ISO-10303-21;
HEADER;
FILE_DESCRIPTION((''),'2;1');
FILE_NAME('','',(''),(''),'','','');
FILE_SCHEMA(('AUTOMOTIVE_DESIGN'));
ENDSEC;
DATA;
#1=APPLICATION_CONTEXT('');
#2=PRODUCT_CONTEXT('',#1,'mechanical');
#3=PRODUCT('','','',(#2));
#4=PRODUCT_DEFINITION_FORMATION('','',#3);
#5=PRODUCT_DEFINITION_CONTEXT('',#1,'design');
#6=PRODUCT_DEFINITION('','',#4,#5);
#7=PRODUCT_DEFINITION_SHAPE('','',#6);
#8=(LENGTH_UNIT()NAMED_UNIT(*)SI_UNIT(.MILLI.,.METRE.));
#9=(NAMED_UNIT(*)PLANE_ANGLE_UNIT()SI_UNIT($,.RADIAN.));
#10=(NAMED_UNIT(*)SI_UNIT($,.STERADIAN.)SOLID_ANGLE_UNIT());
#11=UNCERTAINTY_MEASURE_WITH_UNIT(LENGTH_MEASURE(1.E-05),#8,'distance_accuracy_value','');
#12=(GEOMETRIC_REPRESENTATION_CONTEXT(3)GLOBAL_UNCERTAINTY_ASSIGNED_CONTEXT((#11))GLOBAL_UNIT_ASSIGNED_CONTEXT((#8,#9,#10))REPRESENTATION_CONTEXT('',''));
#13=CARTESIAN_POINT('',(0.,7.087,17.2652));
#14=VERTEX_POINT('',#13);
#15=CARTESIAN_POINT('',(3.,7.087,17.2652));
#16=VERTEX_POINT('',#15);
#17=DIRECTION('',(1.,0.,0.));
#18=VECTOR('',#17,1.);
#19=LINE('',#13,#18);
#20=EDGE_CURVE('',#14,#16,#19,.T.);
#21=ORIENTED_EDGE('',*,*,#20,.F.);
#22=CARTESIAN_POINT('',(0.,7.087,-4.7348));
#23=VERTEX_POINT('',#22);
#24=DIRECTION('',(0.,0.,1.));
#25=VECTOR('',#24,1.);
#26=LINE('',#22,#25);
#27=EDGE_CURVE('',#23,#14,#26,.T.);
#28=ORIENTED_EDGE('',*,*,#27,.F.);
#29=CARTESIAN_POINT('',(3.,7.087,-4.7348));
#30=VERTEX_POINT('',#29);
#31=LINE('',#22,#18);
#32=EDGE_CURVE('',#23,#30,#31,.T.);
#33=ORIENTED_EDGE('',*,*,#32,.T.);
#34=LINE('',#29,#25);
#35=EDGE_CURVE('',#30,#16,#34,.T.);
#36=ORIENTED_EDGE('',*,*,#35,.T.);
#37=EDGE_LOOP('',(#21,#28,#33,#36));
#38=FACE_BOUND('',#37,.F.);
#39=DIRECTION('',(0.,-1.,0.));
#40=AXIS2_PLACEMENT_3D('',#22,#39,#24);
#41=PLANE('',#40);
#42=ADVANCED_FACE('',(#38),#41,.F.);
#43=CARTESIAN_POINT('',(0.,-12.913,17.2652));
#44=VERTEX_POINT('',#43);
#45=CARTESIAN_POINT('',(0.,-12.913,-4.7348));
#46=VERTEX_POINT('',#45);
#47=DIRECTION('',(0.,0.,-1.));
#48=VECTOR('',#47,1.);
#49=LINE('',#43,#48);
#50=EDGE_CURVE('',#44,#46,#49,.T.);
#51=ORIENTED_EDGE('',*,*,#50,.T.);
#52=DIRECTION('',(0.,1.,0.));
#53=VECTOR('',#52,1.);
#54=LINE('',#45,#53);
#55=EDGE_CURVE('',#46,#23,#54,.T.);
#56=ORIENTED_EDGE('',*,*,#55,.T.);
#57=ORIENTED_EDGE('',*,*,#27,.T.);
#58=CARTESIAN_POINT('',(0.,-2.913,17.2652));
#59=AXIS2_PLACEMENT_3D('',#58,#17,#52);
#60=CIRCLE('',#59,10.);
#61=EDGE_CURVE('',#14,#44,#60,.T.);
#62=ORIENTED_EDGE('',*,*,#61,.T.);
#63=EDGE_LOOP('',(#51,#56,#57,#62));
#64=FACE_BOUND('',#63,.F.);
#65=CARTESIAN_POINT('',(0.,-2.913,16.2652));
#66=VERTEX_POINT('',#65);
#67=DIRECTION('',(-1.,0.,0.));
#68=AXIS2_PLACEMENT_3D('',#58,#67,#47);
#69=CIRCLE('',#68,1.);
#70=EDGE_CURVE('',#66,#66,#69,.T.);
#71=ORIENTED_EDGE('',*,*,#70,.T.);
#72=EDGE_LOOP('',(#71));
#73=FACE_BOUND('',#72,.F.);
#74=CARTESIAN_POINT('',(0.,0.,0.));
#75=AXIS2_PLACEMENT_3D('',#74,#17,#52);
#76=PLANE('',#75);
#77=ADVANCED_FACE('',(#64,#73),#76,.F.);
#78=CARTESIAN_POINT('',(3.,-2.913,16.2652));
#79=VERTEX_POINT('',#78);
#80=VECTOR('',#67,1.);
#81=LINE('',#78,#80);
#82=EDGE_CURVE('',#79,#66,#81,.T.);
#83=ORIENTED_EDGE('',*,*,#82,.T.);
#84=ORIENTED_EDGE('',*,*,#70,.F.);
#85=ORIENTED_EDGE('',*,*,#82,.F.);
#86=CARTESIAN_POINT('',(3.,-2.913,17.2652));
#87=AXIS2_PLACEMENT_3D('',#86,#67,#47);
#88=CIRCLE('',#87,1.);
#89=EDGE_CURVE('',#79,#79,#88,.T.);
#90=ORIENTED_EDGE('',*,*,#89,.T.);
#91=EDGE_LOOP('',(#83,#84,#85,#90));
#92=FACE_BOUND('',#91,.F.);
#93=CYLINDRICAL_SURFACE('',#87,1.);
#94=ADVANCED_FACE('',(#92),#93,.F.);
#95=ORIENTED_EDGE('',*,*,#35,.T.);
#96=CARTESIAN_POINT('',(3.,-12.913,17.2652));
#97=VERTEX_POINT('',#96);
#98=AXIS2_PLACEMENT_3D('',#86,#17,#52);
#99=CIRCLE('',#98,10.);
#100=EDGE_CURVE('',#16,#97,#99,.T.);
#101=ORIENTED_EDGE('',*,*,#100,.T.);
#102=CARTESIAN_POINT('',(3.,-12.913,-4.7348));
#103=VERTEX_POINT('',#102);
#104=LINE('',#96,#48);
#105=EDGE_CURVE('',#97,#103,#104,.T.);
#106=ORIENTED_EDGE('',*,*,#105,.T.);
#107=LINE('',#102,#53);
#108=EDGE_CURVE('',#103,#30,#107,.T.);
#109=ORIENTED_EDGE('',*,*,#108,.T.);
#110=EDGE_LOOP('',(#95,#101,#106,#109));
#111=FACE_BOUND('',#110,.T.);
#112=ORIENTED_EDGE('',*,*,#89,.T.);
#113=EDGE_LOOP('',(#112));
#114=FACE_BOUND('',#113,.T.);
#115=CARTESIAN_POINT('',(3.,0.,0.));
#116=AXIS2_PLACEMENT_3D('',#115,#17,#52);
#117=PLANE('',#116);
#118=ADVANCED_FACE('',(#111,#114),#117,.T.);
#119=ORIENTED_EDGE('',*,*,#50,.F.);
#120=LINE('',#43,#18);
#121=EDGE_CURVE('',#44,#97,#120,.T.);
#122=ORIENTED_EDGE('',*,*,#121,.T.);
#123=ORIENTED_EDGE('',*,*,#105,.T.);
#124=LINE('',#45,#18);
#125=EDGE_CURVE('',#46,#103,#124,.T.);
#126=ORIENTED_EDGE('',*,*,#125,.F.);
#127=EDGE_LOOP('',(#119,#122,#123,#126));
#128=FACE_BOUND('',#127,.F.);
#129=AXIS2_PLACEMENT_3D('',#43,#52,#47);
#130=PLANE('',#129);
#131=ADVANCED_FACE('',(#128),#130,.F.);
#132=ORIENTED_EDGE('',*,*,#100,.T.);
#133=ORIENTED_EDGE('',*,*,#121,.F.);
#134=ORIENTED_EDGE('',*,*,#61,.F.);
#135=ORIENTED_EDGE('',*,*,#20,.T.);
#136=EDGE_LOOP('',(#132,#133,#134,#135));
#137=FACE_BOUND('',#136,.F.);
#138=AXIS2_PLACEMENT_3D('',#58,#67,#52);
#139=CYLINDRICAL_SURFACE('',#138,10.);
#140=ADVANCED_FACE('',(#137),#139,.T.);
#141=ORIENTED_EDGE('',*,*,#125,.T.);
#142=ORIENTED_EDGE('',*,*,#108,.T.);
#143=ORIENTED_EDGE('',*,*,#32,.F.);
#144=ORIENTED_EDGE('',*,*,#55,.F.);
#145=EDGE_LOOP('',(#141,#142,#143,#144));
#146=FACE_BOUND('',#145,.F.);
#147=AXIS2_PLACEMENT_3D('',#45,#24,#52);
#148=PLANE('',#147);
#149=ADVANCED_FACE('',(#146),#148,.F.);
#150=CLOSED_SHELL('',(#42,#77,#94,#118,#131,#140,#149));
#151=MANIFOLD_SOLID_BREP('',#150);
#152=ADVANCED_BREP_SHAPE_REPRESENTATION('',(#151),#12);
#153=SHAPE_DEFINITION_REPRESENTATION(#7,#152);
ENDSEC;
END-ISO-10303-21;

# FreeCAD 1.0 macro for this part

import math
import FreeCAD as App
import Part
import Sketcher
Q = App.Units.Quantity

doc = App.newDocument("Part")
body = doc.addObject("PartDesign::Body", "Body")

# Sketch on YZ plane
sketch1 = body.newObject("Sketcher::SketchObject", "Sketch")
sketch1.AttachmentSupport = (doc.getObject("YZ_Plane"), [""])
sketch1.MapMode = "FlatFace"
sketch1.addGeometry(Part.LineSegment(App.Vector(7, -5, 0), App.Vector(7, 17, 0)), False)
sketch1.addGeometry(Part.ArcOfCircle(Part.Circle(App.Vector(-3, 17, 0), App.Vector(0, 0, 1), 10), math.radians(0), math.radians(180)), False)
sketch1.addGeometry(Part.LineSegment(App.Vector(-13, 17, 0), App.Vector(-13, -5, 0)), False)
sketch1.addGeometry(Part.LineSegment(App.Vector(-13, -5, 0), App.Vector(7, -5, 0)), False)
sketch1.addConstraint(Sketcher.Constraint("Tangent", 0, 2, 1, 1))
sketch1.addConstraint(Sketcher.Constraint("Tangent", 1, 2, 2, 1))
sketch1.addConstraint(Sketcher.Constraint("Coincident", 2, 2, 3, 1))
sketch1.addConstraint(Sketcher.Constraint("Coincident", 3, 2, 0, 1))
sketch1.addConstraint(Sketcher.Constraint("Vertical", 0))
sketch1.addConstraint(Sketcher.Constraint("Vertical", 2))
sketch1.addConstraint(Sketcher.Constraint("Horizontal", 3))
sketch1.addConstraint(Sketcher.Constraint("Radius", 1, Q("10 mm")))
sketch1.addConstraint(Sketcher.Constraint("DistanceY", 0, 1, 0, 2, Q("22 mm")))
sketch1.addConstraint(Sketcher.Constraint("DistanceX", 1, 3, -1, 1, Q("2.913 mm")))
sketch1.addConstraint(Sketcher.Constraint("DistanceY", -1, 1, 1, 3, Q("17.2652 mm")))
pad1 = body.newObject("PartDesign::Pad", "Pad")
pad1.Profile = sketch1
pad1.Length = 3

# Sketch on YZ plane
sketch2 = body.newObject("Sketcher::SketchObject", "Sketch001")
sketch2.AttachmentSupport = (doc.getObject("YZ_Plane"), [""])
sketch2.MapMode = "FlatFace"
sketch2.AttachmentOffset = App.Placement(App.Vector(0, 0, 3), App.Rotation())
sketch2.addGeometry(Part.Circle(App.Vector(-2.9, 17.3, 0), App.Vector(0, 0, 1), 1), False)
sketch2.addConstraint(Sketcher.Constraint("Diameter", 0, Q("2 mm")))
sketch2.addConstraint(Sketcher.Constraint("DistanceX", 0, 3, -1, 1, Q("2.913 mm")))
sketch2.addConstraint(Sketcher.Constraint("DistanceY", -1, 1, 0, 3, Q("17.2652 mm")))
doc.recompute()
hole = body.newObject("PartDesign::Hole", "Hole")
hole.Profile = sketch2
hole.ThreadType = "None"
hole.Diameter = 2
hole.DepthType = "Dimension"
hole.Depth = 10
hole.DrillPoint = "Flat"

doc.recompute()
